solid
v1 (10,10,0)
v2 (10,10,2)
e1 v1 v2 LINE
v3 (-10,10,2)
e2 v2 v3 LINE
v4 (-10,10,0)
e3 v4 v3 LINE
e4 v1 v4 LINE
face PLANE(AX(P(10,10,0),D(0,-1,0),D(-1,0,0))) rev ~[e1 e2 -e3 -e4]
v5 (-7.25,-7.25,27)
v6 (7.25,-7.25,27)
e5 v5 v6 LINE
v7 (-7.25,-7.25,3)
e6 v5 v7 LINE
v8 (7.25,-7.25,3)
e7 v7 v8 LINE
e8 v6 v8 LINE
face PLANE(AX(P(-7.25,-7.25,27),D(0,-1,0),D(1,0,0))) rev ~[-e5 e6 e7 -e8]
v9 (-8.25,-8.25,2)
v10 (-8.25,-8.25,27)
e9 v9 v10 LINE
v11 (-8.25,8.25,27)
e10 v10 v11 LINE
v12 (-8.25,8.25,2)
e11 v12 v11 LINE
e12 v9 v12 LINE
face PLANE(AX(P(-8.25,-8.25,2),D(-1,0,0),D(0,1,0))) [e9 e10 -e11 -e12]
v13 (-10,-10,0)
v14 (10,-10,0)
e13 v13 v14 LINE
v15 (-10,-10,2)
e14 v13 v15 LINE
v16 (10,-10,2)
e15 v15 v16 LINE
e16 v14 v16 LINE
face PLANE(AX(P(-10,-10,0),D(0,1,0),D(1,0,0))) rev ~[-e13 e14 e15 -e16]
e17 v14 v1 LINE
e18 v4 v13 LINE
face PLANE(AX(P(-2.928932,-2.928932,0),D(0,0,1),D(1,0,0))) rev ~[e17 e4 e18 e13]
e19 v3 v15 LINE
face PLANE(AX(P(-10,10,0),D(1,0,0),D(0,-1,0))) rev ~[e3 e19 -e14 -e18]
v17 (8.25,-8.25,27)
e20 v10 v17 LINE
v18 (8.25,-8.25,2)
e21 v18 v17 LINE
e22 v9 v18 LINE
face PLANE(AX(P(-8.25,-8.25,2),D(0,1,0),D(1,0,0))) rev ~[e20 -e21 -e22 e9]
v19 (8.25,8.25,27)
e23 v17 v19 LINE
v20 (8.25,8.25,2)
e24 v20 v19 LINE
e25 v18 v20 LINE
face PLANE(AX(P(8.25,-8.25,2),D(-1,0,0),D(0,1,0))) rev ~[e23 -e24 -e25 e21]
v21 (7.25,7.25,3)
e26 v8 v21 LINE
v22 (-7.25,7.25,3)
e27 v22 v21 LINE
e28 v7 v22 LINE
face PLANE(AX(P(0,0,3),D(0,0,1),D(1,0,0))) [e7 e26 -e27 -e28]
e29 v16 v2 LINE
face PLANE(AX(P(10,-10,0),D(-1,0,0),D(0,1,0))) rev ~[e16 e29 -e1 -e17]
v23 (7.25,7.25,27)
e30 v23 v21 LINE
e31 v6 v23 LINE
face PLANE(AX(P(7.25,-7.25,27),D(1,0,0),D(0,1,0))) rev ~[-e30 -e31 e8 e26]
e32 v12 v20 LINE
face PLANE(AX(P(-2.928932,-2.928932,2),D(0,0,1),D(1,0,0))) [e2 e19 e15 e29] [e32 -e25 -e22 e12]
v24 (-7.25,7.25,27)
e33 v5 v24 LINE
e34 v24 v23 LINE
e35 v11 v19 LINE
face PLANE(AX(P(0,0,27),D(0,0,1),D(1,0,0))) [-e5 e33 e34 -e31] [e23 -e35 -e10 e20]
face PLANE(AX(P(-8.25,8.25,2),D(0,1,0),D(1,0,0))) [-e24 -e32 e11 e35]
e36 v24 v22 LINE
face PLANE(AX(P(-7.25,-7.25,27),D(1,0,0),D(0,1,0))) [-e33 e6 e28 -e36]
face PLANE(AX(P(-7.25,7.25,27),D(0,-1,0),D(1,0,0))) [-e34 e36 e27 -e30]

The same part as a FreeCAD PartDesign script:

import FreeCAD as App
import Part
import Sketcher

doc = App.newDocument("Part")
params = doc.addObject("Spreadsheet::Sheet", "Params")
for row, (alias, value) in enumerate([
    ("sketch1_width", "20 mm"),
    ("pad1_length", "2 mm"),
    ("sketch2_width", "16.5 mm"),
    ("pad2_length", "25 mm"),
    ("sketch3_width", "14.5 mm"),
    ("pocket1_length", "24 mm"),
], start=1):
    params.set(f"A{row}", alias)
    params.set(f"B{row}", "=" + value)
    params.setAlias(f"B{row}", alias)

body = doc.addObject("PartDesign::Body", "Body")

# Sketch on XY plane
sketch1 = body.newObject("Sketcher::SketchObject", "Sketch")
sketch1.AttachmentSupport = (doc.getObject("XY_Plane"), [""])
sketch1.MapMode = "FlatFace"
sketch1.addGeometry(Part.LineSegment(App.Vector(-10, 10, 0), App.Vector(-10, -10, 0)), False)
sketch1.addGeometry(Part.LineSegment(App.Vector(-10, -10, 0), App.Vector(10, -10, 0)), False)
sketch1.addGeometry(Part.LineSegment(App.Vector(10, -10, 0), App.Vector(10, 10, 0)), False)
sketch1.addGeometry(Part.LineSegment(App.Vector(10, 10, 0), App.Vector(-10, 10, 0)), False)
sketch1.addConstraint(Sketcher.Constraint("Coincident", 0, 2, 1, 1))
sketch1.addConstraint(Sketcher.Constraint("Coincident", 1, 2, 2, 1))
sketch1.addConstraint(Sketcher.Constraint("Coincident", 2, 2, 3, 1))
sketch1.addConstraint(Sketcher.Constraint("Coincident", 3, 2, 0, 1))
sketch1.addConstraint(Sketcher.Constraint("Vertical", 0))
sketch1.addConstraint(Sketcher.Constraint("Horizontal", 1))
sketch1.addConstraint(Sketcher.Constraint("Vertical", 2))
sketch1.addConstraint(Sketcher.Constraint("Horizontal", 3))
sketch1.addConstraint(Sketcher.Constraint("Symmetric", 0, 2, 2, 2, -1, 1))
sketch1.addConstraint(Sketcher.Constraint("Equal", 3, 0))
sketch1.addConstraint(Sketcher.Constraint("DistanceX", 1, 1, 1, 2, 20.0))
sketch1.setExpression("Constraints[10]", "Params.sketch1_width")
pad1 = body.newObject("PartDesign::Pad", "Pad")
pad1.Profile = sketch1
pad1.setExpression("Length", "Params.pad1_length")

# Sketch on XY plane
sketch2 = body.newObject("Sketcher::SketchObject", "Sketch001")
sketch2.AttachmentSupport = (doc.getObject("XY_Plane"), [""])
sketch2.MapMode = "FlatFace"
sketch2.AttachmentOffset = App.Placement(App.Vector(0, 0, 2), App.Rotation())
sketch2.addGeometry(Part.LineSegment(App.Vector(-8.25, 8.25, 0), App.Vector(-8.25, -8.25, 0)), False)
sketch2.addGeometry(Part.LineSegment(App.Vector(-8.25, -8.25, 0), App.Vector(8.25, -8.25, 0)), False)
sketch2.addGeometry(Part.LineSegment(App.Vector(8.25, -8.25, 0), App.Vector(8.25, 8.25, 0)), False)
sketch2.addGeometry(Part.LineSegment(App.Vector(8.25, 8.25, 0), App.Vector(-8.25, 8.25, 0)), False)
sketch2.addConstraint(Sketcher.Constraint("Coincident", 0, 2, 1, 1))
sketch2.addConstraint(Sketcher.Constraint("Coincident", 1, 2, 2, 1))
sketch2.addConstraint(Sketcher.Constraint("Coincident", 2, 2, 3, 1))
sketch2.addConstraint(Sketcher.Constraint("Coincident", 3, 2, 0, 1))
sketch2.addConstraint(Sketcher.Constraint("Vertical", 0))
sketch2.addConstraint(Sketcher.Constraint("Horizontal", 1))
sketch2.addConstraint(Sketcher.Constraint("Vertical", 2))
sketch2.addConstraint(Sketcher.Constraint("Horizontal", 3))
sketch2.addConstraint(Sketcher.Constraint("Symmetric", 0, 2, 2, 2, -1, 1))
sketch2.addConstraint(Sketcher.Constraint("Equal", 3, 0))
sketch2.addConstraint(Sketcher.Constraint("DistanceX", 1, 1, 1, 2, 16.5))
sketch2.setExpression("Constraints[10]", "Params.sketch2_width")
pad2 = body.newObject("PartDesign::Pad", "Pad001")
pad2.Profile = sketch2
pad2.setExpression("Length", "Params.pad2_length")

# Sketch on XY plane
sketch3 = body.newObject("Sketcher::SketchObject", "Sketch002")
sketch3.AttachmentSupport = (doc.getObject("XY_Plane"), [""])
sketch3.MapMode = "FlatFace"
sketch3.AttachmentOffset = App.Placement(App.Vector(0, 0, 27), App.Rotation())
sketch3.addGeometry(Part.LineSegment(App.Vector(-7.25, 7.25, 0), App.Vector(-7.25, -7.25, 0)), False)
sketch3.addGeometry(Part.LineSegment(App.Vector(-7.25, -7.25, 0), App.Vector(7.25, -7.25, 0)), False)
sketch3.addGeometry(Part.LineSegment(App.Vector(7.25, -7.25, 0), App.Vector(7.25, 7.25, 0)), False)
sketch3.addGeometry(Part.LineSegment(App.Vector(7.25, 7.25, 0), App.Vector(-7.25, 7.25, 0)), False)
sketch3.addConstraint(Sketcher.Constraint("Coincident", 0, 2, 1, 1))
sketch3.addConstraint(Sketcher.Constraint("Coincident", 1, 2, 2, 1))
sketch3.addConstraint(Sketcher.Constraint("Coincident", 2, 2, 3, 1))
sketch3.addConstraint(Sketcher.Constraint("Coincident", 3, 2, 0, 1))
sketch3.addConstraint(Sketcher.Constraint("Vertical", 0))
sketch3.addConstraint(Sketcher.Constraint("Horizontal", 1))
sketch3.addConstraint(Sketcher.Constraint("Vertical", 2))
sketch3.addConstraint(Sketcher.Constraint("Horizontal", 3))
sketch3.addConstraint(Sketcher.Constraint("Symmetric", 0, 2, 2, 2, -1, 1))
sketch3.addConstraint(Sketcher.Constraint("Equal", 3, 0))
sketch3.addConstraint(Sketcher.Constraint("DistanceX", 1, 1, 1, 2, 14.5))
sketch3.setExpression("Constraints[10]", "Params.sketch3_width")
pocket1 = body.newObject("PartDesign::Pocket", "Pocket")
pocket1.Profile = sketch3
pocket1.setExpression("Length", "Params.pocket1_length")

doc.recompute()
